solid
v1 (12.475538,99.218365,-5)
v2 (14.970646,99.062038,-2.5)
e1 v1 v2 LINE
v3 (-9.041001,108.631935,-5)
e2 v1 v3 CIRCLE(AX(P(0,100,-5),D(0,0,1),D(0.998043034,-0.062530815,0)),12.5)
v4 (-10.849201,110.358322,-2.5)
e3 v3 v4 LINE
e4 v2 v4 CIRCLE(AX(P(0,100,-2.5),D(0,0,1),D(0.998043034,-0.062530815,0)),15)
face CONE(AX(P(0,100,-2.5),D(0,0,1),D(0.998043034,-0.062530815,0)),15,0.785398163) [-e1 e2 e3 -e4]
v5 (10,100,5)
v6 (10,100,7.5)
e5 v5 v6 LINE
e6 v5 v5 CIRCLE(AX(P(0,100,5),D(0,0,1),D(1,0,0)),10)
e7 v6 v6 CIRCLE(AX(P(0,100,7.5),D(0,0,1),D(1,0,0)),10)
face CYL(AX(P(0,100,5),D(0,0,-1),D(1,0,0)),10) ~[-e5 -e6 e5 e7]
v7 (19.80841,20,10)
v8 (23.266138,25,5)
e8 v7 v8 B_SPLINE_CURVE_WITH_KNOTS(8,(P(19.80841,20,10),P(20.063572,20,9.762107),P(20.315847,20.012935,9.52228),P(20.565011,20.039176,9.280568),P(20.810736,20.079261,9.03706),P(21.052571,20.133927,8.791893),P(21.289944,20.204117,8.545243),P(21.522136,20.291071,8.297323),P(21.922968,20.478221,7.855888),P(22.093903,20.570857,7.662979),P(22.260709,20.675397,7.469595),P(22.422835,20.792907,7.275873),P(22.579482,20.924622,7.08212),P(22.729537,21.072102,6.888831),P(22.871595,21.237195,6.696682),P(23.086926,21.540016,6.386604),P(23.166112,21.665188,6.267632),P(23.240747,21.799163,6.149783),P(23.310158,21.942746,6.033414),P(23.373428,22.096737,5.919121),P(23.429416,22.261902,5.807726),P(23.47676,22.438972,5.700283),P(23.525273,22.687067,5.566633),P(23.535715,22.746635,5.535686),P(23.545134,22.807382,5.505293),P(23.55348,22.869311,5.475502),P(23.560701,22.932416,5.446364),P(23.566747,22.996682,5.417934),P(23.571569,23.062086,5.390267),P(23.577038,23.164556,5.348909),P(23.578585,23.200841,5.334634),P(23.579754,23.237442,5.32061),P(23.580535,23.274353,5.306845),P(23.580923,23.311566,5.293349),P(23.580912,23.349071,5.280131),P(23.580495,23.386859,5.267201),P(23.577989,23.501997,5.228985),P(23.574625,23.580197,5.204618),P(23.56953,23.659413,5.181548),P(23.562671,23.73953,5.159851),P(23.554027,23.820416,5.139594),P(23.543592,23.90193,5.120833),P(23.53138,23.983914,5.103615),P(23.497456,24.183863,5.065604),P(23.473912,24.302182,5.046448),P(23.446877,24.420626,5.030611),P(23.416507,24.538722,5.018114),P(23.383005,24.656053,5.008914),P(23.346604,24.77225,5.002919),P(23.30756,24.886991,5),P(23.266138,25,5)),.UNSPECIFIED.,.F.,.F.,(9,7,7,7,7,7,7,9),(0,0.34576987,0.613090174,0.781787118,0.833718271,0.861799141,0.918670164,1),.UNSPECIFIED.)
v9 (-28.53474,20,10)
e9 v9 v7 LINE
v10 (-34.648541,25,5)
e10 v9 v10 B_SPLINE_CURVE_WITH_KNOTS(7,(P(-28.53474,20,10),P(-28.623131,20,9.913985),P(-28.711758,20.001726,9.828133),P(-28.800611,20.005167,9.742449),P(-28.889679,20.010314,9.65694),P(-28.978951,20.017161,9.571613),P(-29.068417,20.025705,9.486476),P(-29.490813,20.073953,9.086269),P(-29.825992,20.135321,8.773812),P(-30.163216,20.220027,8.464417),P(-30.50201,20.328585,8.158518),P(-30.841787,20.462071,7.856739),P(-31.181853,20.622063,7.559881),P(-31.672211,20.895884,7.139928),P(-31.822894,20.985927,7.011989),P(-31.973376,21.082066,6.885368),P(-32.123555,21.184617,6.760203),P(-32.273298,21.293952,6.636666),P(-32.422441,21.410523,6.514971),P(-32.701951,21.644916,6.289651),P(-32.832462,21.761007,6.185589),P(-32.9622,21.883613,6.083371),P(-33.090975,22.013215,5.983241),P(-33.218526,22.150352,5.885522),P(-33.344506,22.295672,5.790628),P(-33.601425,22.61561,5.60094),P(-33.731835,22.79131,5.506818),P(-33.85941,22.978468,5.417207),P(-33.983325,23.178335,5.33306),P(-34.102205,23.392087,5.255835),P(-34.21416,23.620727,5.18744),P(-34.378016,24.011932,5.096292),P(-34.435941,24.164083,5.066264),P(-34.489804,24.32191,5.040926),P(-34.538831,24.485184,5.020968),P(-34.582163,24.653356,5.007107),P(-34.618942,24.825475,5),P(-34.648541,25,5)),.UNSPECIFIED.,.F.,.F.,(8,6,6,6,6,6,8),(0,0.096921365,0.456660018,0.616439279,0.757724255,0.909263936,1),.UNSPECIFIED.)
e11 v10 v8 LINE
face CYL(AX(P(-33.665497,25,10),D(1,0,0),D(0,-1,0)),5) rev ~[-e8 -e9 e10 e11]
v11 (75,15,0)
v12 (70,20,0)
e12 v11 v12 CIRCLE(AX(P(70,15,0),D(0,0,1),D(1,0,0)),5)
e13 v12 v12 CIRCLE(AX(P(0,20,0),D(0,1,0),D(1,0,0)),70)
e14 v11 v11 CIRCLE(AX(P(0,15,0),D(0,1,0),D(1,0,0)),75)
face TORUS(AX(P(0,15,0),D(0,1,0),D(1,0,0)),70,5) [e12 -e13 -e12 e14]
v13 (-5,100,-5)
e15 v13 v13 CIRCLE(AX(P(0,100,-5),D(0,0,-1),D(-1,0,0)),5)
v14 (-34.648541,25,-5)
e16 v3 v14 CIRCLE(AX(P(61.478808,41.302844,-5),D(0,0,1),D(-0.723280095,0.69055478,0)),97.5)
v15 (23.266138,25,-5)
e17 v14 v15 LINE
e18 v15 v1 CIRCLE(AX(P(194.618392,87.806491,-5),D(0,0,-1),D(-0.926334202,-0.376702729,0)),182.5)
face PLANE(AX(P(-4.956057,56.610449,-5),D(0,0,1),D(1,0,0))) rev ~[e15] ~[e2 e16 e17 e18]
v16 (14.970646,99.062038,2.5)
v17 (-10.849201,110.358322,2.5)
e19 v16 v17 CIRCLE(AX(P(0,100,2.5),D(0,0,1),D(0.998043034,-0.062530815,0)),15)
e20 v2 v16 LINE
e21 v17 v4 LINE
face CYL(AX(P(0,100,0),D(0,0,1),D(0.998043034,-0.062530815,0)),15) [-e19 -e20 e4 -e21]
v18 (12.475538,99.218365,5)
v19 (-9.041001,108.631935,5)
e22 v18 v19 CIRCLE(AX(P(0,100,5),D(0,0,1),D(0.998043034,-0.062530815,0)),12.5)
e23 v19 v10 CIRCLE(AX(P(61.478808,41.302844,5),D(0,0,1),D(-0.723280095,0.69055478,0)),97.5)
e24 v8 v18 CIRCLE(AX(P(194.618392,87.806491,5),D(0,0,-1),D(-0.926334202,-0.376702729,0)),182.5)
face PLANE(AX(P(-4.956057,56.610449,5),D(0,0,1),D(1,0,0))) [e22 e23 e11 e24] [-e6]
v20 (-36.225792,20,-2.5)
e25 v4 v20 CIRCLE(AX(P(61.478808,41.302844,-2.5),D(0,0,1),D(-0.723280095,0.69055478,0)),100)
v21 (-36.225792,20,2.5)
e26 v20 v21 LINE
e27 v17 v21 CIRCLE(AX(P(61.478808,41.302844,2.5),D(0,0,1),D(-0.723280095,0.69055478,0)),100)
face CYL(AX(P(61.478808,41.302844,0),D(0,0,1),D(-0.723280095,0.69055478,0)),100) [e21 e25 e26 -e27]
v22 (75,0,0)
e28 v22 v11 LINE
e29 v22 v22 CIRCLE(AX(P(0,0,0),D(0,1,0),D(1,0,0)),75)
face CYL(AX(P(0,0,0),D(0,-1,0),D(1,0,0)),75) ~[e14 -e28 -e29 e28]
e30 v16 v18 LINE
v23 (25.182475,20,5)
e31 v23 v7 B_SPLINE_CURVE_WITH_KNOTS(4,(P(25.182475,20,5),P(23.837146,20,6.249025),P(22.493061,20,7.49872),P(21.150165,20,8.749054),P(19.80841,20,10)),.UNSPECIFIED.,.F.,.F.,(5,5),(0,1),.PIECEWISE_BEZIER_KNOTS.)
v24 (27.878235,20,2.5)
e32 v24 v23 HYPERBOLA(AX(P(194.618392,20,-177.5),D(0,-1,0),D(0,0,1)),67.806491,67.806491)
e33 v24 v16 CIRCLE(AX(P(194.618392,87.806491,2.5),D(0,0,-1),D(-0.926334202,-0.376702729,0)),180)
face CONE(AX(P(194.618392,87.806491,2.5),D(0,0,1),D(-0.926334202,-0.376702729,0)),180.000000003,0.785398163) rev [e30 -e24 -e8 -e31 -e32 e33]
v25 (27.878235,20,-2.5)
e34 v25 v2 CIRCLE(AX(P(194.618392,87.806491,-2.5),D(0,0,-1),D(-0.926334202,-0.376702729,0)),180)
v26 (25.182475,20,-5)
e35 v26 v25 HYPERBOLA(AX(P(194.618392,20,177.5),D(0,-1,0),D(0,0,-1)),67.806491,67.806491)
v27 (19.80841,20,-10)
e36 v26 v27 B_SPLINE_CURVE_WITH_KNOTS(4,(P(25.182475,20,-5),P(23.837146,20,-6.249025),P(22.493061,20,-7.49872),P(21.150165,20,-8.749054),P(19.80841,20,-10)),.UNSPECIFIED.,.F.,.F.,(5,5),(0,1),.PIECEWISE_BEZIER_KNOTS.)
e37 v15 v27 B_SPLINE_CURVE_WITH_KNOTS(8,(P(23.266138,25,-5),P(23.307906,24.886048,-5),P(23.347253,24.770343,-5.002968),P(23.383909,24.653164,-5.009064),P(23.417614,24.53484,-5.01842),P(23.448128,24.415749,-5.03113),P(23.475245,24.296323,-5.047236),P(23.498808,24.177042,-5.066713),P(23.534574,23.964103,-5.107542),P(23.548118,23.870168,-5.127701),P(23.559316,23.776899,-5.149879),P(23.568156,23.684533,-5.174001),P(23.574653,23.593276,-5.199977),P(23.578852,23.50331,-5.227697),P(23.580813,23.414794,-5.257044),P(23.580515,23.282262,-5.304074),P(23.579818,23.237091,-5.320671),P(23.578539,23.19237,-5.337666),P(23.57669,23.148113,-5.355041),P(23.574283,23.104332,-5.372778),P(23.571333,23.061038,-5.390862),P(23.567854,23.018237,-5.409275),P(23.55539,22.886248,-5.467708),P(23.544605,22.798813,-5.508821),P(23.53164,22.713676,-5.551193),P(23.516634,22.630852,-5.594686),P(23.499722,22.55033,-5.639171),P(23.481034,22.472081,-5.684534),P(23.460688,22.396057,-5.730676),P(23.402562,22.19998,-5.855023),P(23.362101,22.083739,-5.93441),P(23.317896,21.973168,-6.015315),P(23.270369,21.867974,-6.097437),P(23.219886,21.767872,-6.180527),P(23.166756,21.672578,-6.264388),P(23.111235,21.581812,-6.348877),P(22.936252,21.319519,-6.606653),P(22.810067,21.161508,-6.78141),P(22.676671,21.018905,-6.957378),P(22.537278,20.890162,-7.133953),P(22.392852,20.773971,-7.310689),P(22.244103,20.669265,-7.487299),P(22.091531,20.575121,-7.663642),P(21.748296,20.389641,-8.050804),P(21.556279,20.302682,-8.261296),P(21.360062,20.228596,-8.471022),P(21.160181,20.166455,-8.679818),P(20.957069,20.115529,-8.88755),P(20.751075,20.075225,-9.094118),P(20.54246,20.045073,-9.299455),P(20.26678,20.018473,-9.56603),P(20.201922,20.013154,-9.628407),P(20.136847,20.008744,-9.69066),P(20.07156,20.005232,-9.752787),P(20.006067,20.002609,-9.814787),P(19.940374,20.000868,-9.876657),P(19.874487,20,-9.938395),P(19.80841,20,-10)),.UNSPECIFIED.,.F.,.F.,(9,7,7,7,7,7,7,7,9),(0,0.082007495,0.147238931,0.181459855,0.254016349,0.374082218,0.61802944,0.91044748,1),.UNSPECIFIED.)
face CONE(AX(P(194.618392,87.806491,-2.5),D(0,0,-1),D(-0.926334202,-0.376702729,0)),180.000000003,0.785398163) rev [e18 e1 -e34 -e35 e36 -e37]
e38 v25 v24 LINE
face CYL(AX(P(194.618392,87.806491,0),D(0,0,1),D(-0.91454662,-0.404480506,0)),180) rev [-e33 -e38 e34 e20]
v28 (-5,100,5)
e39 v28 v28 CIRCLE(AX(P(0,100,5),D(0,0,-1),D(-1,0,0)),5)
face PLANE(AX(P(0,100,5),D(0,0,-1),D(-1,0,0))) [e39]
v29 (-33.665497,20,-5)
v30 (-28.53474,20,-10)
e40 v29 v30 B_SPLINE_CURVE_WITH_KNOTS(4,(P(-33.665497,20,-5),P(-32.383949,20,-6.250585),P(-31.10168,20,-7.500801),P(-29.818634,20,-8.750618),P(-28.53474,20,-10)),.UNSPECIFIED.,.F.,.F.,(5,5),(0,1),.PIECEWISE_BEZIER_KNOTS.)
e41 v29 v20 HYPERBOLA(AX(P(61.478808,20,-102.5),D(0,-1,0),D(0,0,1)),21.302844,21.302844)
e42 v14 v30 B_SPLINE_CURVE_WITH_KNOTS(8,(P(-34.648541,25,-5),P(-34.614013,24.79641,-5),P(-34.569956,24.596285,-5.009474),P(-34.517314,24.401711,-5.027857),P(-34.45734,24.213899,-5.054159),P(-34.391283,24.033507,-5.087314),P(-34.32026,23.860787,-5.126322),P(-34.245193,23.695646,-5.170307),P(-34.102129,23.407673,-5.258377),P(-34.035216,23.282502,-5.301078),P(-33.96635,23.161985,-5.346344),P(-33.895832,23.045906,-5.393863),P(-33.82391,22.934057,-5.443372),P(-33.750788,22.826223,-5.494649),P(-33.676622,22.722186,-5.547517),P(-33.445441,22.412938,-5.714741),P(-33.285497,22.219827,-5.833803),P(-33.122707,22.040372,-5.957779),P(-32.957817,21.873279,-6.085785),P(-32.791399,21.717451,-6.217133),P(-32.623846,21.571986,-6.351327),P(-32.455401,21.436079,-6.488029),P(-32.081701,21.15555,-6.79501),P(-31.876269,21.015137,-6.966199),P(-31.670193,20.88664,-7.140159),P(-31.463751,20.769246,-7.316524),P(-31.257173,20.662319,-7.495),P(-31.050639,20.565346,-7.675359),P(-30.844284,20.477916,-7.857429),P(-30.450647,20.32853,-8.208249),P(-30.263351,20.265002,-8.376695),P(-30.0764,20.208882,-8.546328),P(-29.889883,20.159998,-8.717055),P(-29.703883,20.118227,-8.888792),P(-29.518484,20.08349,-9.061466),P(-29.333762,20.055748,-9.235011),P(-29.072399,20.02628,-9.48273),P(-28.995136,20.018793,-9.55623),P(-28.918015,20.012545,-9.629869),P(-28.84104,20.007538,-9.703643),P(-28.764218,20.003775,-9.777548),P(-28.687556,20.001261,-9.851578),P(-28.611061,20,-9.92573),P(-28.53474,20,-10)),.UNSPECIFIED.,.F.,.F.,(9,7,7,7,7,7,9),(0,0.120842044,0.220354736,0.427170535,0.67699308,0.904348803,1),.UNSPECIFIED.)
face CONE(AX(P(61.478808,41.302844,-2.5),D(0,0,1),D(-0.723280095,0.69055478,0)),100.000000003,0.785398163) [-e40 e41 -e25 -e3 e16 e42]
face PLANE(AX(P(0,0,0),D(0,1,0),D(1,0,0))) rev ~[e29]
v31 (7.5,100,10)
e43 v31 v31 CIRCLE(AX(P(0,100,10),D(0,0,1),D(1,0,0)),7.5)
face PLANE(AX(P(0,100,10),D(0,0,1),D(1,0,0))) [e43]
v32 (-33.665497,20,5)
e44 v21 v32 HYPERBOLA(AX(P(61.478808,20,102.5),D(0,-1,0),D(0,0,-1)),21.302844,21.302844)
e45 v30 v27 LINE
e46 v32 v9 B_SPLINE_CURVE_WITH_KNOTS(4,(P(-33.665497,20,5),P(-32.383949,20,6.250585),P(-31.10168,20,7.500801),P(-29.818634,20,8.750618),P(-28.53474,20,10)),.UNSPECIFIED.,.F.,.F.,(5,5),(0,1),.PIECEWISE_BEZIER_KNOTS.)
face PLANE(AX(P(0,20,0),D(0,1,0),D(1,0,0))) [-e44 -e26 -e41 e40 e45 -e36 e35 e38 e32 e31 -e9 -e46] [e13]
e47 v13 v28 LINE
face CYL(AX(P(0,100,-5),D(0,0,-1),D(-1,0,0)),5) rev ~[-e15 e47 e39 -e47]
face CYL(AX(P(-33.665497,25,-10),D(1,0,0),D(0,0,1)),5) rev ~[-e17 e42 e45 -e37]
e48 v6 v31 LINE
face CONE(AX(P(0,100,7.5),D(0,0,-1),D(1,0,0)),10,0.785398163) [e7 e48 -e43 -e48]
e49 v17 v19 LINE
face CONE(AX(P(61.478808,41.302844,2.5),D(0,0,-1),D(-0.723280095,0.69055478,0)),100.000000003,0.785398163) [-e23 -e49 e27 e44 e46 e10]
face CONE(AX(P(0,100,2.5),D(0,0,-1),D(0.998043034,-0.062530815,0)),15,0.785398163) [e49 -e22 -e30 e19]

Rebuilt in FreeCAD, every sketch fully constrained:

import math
import FreeCAD as App
import Part
import Sketcher

V = App.Vector


def edges_at(feature, points):
    """Names of the edges that pass closest to the given points."""
    edges = feature.Shape.Edges
    near = lambda p: min(range(len(edges)), key=lambda i: edges[i].distToShape(Part.Vertex(*p))[0])
    return sorted({f"Edge{near(p) + 1}" for p in points})

doc = App.newDocument("Part")
body = doc.addObject("PartDesign::Body", "Body")

sketch1 = body.newObject("Sketcher::SketchObject", "Sketch")
sketch1.AttachmentSupport = (doc.getObject("XZ_Plane"), [""])
sketch1.MapMode = "FlatFace"
sketch1.addGeometry(Part.Circle(V(0, 0, 0), V(0, 0, 1), 75), False)
sketch1.addConstraint([
    Sketcher.Constraint("Coincident", 0, 3, -1, 1),
    Sketcher.Constraint("Diameter", 0, 150.0),
])
pad1 = body.newObject("PartDesign::Pad", "Pad")
pad1.Profile = sketch1
pad1.Length = 20
pad1.Reversed = True
doc.recompute()

fillet = body.newObject("PartDesign::Fillet", "Fillet")
fillet.Base = (pad1, edges_at(pad1, [(-75, 20, 0)]))
fillet.Radius = 5

sketch2 = body.newObject("Sketcher::SketchObject", "Sketch001")
sketch2.AttachmentSupport = (doc.getObject("XY_Plane"), [""])
sketch2.MapMode = "FlatFace"
sketch2.addGeometry([
    Part.LineSegment(V(-35, 15, 0), V(30, 15, 0)),
    Part.ArcOfCircle(Part.Circle(V(195, 88, 0), V(0, 0, 1), 180), math.radians(176), math.radians(204)),
    Part.ArcOfCircle(Part.Circle(V(0, 100, 0), V(0, 0, 1), 15), math.radians(-4), math.radians(136)),
    Part.ArcOfCircle(Part.Circle(V(61, 41, 0), V(0, 0, 1), 100), math.radians(136), math.radians(195)),
], False)
sketch2.addConstraint([
    Sketcher.Constraint("Coincident", 0, 2, 1, 2),
    Sketcher.Constraint("Tangent", 1, 1, 2, 1),
    Sketcher.Constraint("Tangent", 2, 2, 3, 1),
    Sketcher.Constraint("Coincident", 3, 2, 0, 1),
    Sketcher.Constraint("Horizontal", 0),
    Sketcher.Constraint("PointOnObject", 2, 3, -2),
    Sketcher.Constraint("Radius", 1, 180.0),
    Sketcher.Constraint("Radius", 2, 15.0),
    Sketcher.Constraint("Radius", 3, 100.0),
    Sketcher.Constraint("DistanceX", 0, 1, 0, 2, 65.0),
    Sketcher.Constraint("DistanceY", -1, 1, 2, 3, 100.0),
    Sketcher.Constraint("DistanceX", -1, 1, 0, 2, 30.0),
    Sketcher.Constraint("DistanceY", -1, 1, 0, 2, 15.0),
])
pad2 = body.newObject("PartDesign::Pad", "Pad001")
pad2.Profile = sketch2
pad2.Length = 10
pad2.Midplane = True
doc.recompute()

chamfer = body.newObject("PartDesign::Chamfer", "Chamfer")
chamfer.Base = (pad2, edges_at(pad2, [
    (-34.796, 68.341, -5),
    (16.97, 58.804, -5),
    (6.012, 113.742, -5),
    (16.97, 58.804, 5),
    (6.012, 113.742, 5),
    (-34.796, 68.341, 5),
]))
chamfer.Size = 2.5
doc.recompute()

fillet2 = body.newObject("PartDesign::Fillet", "Fillet001")
fillet2.Base = (chamfer, edges_at(chamfer, [(-4.242, 20, -5), (-4.242, 20, 5)]))
fillet2.Radius = 5

sketch3 = body.newObject("Sketcher::SketchObject", "Sketch002")
sketch3.AttachmentSupport = (doc.getObject("XY_Plane"), [""])
sketch3.MapMode = "FlatFace"
sketch3.AttachmentOffset = App.Placement(V(0, 0, 5), App.Rotation())
sketch3.addGeometry(Part.Circle(V(0, 100, 0), V(0, 0, 1), 10), False)
sketch3.addConstraint([
    Sketcher.Constraint("PointOnObject", 0, 3, -2),
    Sketcher.Constraint("Diameter", 0, 20.0),
    Sketcher.Constraint("DistanceY", -1, 1, 0, 3, 100.0),
])
pad3 = body.newObject("PartDesign::Pad", "Pad002")
pad3.Profile = sketch3
pad3.Length = 5
doc.recompute()

chamfer2 = body.newObject("PartDesign::Chamfer", "Chamfer001")
chamfer2.Base = (pad3, edges_at(pad3, [(-10, 100, 10)]))
chamfer2.Size = 2.5

sketch4 = body.newObject("Sketcher::SketchObject", "Sketch003")
sketch4.AttachmentSupport = (doc.getObject("XY_Plane"), [""])
sketch4.MapMode = "FlatFace"
sketch4.AttachmentOffset = App.Placement(V(0, 0, -5), App.Rotation())
sketch4.addGeometry(Part.Circle(V(0, 100, 0), V(0, 0, 1), 5), False)
sketch4.addConstraint([
    Sketcher.Constraint("PointOnObject", 0, 3, -2),
    Sketcher.Constraint("Diameter", 0, 10.0),
    Sketcher.Constraint("DistanceY", -1, 1, 0, 3, 100.0),
])
pocket1 = body.newObject("PartDesign::Pocket", "Pocket")
pocket1.Profile = sketch4
pocket1.Length = 10
pocket1.Reversed = True

doc.recompute()
